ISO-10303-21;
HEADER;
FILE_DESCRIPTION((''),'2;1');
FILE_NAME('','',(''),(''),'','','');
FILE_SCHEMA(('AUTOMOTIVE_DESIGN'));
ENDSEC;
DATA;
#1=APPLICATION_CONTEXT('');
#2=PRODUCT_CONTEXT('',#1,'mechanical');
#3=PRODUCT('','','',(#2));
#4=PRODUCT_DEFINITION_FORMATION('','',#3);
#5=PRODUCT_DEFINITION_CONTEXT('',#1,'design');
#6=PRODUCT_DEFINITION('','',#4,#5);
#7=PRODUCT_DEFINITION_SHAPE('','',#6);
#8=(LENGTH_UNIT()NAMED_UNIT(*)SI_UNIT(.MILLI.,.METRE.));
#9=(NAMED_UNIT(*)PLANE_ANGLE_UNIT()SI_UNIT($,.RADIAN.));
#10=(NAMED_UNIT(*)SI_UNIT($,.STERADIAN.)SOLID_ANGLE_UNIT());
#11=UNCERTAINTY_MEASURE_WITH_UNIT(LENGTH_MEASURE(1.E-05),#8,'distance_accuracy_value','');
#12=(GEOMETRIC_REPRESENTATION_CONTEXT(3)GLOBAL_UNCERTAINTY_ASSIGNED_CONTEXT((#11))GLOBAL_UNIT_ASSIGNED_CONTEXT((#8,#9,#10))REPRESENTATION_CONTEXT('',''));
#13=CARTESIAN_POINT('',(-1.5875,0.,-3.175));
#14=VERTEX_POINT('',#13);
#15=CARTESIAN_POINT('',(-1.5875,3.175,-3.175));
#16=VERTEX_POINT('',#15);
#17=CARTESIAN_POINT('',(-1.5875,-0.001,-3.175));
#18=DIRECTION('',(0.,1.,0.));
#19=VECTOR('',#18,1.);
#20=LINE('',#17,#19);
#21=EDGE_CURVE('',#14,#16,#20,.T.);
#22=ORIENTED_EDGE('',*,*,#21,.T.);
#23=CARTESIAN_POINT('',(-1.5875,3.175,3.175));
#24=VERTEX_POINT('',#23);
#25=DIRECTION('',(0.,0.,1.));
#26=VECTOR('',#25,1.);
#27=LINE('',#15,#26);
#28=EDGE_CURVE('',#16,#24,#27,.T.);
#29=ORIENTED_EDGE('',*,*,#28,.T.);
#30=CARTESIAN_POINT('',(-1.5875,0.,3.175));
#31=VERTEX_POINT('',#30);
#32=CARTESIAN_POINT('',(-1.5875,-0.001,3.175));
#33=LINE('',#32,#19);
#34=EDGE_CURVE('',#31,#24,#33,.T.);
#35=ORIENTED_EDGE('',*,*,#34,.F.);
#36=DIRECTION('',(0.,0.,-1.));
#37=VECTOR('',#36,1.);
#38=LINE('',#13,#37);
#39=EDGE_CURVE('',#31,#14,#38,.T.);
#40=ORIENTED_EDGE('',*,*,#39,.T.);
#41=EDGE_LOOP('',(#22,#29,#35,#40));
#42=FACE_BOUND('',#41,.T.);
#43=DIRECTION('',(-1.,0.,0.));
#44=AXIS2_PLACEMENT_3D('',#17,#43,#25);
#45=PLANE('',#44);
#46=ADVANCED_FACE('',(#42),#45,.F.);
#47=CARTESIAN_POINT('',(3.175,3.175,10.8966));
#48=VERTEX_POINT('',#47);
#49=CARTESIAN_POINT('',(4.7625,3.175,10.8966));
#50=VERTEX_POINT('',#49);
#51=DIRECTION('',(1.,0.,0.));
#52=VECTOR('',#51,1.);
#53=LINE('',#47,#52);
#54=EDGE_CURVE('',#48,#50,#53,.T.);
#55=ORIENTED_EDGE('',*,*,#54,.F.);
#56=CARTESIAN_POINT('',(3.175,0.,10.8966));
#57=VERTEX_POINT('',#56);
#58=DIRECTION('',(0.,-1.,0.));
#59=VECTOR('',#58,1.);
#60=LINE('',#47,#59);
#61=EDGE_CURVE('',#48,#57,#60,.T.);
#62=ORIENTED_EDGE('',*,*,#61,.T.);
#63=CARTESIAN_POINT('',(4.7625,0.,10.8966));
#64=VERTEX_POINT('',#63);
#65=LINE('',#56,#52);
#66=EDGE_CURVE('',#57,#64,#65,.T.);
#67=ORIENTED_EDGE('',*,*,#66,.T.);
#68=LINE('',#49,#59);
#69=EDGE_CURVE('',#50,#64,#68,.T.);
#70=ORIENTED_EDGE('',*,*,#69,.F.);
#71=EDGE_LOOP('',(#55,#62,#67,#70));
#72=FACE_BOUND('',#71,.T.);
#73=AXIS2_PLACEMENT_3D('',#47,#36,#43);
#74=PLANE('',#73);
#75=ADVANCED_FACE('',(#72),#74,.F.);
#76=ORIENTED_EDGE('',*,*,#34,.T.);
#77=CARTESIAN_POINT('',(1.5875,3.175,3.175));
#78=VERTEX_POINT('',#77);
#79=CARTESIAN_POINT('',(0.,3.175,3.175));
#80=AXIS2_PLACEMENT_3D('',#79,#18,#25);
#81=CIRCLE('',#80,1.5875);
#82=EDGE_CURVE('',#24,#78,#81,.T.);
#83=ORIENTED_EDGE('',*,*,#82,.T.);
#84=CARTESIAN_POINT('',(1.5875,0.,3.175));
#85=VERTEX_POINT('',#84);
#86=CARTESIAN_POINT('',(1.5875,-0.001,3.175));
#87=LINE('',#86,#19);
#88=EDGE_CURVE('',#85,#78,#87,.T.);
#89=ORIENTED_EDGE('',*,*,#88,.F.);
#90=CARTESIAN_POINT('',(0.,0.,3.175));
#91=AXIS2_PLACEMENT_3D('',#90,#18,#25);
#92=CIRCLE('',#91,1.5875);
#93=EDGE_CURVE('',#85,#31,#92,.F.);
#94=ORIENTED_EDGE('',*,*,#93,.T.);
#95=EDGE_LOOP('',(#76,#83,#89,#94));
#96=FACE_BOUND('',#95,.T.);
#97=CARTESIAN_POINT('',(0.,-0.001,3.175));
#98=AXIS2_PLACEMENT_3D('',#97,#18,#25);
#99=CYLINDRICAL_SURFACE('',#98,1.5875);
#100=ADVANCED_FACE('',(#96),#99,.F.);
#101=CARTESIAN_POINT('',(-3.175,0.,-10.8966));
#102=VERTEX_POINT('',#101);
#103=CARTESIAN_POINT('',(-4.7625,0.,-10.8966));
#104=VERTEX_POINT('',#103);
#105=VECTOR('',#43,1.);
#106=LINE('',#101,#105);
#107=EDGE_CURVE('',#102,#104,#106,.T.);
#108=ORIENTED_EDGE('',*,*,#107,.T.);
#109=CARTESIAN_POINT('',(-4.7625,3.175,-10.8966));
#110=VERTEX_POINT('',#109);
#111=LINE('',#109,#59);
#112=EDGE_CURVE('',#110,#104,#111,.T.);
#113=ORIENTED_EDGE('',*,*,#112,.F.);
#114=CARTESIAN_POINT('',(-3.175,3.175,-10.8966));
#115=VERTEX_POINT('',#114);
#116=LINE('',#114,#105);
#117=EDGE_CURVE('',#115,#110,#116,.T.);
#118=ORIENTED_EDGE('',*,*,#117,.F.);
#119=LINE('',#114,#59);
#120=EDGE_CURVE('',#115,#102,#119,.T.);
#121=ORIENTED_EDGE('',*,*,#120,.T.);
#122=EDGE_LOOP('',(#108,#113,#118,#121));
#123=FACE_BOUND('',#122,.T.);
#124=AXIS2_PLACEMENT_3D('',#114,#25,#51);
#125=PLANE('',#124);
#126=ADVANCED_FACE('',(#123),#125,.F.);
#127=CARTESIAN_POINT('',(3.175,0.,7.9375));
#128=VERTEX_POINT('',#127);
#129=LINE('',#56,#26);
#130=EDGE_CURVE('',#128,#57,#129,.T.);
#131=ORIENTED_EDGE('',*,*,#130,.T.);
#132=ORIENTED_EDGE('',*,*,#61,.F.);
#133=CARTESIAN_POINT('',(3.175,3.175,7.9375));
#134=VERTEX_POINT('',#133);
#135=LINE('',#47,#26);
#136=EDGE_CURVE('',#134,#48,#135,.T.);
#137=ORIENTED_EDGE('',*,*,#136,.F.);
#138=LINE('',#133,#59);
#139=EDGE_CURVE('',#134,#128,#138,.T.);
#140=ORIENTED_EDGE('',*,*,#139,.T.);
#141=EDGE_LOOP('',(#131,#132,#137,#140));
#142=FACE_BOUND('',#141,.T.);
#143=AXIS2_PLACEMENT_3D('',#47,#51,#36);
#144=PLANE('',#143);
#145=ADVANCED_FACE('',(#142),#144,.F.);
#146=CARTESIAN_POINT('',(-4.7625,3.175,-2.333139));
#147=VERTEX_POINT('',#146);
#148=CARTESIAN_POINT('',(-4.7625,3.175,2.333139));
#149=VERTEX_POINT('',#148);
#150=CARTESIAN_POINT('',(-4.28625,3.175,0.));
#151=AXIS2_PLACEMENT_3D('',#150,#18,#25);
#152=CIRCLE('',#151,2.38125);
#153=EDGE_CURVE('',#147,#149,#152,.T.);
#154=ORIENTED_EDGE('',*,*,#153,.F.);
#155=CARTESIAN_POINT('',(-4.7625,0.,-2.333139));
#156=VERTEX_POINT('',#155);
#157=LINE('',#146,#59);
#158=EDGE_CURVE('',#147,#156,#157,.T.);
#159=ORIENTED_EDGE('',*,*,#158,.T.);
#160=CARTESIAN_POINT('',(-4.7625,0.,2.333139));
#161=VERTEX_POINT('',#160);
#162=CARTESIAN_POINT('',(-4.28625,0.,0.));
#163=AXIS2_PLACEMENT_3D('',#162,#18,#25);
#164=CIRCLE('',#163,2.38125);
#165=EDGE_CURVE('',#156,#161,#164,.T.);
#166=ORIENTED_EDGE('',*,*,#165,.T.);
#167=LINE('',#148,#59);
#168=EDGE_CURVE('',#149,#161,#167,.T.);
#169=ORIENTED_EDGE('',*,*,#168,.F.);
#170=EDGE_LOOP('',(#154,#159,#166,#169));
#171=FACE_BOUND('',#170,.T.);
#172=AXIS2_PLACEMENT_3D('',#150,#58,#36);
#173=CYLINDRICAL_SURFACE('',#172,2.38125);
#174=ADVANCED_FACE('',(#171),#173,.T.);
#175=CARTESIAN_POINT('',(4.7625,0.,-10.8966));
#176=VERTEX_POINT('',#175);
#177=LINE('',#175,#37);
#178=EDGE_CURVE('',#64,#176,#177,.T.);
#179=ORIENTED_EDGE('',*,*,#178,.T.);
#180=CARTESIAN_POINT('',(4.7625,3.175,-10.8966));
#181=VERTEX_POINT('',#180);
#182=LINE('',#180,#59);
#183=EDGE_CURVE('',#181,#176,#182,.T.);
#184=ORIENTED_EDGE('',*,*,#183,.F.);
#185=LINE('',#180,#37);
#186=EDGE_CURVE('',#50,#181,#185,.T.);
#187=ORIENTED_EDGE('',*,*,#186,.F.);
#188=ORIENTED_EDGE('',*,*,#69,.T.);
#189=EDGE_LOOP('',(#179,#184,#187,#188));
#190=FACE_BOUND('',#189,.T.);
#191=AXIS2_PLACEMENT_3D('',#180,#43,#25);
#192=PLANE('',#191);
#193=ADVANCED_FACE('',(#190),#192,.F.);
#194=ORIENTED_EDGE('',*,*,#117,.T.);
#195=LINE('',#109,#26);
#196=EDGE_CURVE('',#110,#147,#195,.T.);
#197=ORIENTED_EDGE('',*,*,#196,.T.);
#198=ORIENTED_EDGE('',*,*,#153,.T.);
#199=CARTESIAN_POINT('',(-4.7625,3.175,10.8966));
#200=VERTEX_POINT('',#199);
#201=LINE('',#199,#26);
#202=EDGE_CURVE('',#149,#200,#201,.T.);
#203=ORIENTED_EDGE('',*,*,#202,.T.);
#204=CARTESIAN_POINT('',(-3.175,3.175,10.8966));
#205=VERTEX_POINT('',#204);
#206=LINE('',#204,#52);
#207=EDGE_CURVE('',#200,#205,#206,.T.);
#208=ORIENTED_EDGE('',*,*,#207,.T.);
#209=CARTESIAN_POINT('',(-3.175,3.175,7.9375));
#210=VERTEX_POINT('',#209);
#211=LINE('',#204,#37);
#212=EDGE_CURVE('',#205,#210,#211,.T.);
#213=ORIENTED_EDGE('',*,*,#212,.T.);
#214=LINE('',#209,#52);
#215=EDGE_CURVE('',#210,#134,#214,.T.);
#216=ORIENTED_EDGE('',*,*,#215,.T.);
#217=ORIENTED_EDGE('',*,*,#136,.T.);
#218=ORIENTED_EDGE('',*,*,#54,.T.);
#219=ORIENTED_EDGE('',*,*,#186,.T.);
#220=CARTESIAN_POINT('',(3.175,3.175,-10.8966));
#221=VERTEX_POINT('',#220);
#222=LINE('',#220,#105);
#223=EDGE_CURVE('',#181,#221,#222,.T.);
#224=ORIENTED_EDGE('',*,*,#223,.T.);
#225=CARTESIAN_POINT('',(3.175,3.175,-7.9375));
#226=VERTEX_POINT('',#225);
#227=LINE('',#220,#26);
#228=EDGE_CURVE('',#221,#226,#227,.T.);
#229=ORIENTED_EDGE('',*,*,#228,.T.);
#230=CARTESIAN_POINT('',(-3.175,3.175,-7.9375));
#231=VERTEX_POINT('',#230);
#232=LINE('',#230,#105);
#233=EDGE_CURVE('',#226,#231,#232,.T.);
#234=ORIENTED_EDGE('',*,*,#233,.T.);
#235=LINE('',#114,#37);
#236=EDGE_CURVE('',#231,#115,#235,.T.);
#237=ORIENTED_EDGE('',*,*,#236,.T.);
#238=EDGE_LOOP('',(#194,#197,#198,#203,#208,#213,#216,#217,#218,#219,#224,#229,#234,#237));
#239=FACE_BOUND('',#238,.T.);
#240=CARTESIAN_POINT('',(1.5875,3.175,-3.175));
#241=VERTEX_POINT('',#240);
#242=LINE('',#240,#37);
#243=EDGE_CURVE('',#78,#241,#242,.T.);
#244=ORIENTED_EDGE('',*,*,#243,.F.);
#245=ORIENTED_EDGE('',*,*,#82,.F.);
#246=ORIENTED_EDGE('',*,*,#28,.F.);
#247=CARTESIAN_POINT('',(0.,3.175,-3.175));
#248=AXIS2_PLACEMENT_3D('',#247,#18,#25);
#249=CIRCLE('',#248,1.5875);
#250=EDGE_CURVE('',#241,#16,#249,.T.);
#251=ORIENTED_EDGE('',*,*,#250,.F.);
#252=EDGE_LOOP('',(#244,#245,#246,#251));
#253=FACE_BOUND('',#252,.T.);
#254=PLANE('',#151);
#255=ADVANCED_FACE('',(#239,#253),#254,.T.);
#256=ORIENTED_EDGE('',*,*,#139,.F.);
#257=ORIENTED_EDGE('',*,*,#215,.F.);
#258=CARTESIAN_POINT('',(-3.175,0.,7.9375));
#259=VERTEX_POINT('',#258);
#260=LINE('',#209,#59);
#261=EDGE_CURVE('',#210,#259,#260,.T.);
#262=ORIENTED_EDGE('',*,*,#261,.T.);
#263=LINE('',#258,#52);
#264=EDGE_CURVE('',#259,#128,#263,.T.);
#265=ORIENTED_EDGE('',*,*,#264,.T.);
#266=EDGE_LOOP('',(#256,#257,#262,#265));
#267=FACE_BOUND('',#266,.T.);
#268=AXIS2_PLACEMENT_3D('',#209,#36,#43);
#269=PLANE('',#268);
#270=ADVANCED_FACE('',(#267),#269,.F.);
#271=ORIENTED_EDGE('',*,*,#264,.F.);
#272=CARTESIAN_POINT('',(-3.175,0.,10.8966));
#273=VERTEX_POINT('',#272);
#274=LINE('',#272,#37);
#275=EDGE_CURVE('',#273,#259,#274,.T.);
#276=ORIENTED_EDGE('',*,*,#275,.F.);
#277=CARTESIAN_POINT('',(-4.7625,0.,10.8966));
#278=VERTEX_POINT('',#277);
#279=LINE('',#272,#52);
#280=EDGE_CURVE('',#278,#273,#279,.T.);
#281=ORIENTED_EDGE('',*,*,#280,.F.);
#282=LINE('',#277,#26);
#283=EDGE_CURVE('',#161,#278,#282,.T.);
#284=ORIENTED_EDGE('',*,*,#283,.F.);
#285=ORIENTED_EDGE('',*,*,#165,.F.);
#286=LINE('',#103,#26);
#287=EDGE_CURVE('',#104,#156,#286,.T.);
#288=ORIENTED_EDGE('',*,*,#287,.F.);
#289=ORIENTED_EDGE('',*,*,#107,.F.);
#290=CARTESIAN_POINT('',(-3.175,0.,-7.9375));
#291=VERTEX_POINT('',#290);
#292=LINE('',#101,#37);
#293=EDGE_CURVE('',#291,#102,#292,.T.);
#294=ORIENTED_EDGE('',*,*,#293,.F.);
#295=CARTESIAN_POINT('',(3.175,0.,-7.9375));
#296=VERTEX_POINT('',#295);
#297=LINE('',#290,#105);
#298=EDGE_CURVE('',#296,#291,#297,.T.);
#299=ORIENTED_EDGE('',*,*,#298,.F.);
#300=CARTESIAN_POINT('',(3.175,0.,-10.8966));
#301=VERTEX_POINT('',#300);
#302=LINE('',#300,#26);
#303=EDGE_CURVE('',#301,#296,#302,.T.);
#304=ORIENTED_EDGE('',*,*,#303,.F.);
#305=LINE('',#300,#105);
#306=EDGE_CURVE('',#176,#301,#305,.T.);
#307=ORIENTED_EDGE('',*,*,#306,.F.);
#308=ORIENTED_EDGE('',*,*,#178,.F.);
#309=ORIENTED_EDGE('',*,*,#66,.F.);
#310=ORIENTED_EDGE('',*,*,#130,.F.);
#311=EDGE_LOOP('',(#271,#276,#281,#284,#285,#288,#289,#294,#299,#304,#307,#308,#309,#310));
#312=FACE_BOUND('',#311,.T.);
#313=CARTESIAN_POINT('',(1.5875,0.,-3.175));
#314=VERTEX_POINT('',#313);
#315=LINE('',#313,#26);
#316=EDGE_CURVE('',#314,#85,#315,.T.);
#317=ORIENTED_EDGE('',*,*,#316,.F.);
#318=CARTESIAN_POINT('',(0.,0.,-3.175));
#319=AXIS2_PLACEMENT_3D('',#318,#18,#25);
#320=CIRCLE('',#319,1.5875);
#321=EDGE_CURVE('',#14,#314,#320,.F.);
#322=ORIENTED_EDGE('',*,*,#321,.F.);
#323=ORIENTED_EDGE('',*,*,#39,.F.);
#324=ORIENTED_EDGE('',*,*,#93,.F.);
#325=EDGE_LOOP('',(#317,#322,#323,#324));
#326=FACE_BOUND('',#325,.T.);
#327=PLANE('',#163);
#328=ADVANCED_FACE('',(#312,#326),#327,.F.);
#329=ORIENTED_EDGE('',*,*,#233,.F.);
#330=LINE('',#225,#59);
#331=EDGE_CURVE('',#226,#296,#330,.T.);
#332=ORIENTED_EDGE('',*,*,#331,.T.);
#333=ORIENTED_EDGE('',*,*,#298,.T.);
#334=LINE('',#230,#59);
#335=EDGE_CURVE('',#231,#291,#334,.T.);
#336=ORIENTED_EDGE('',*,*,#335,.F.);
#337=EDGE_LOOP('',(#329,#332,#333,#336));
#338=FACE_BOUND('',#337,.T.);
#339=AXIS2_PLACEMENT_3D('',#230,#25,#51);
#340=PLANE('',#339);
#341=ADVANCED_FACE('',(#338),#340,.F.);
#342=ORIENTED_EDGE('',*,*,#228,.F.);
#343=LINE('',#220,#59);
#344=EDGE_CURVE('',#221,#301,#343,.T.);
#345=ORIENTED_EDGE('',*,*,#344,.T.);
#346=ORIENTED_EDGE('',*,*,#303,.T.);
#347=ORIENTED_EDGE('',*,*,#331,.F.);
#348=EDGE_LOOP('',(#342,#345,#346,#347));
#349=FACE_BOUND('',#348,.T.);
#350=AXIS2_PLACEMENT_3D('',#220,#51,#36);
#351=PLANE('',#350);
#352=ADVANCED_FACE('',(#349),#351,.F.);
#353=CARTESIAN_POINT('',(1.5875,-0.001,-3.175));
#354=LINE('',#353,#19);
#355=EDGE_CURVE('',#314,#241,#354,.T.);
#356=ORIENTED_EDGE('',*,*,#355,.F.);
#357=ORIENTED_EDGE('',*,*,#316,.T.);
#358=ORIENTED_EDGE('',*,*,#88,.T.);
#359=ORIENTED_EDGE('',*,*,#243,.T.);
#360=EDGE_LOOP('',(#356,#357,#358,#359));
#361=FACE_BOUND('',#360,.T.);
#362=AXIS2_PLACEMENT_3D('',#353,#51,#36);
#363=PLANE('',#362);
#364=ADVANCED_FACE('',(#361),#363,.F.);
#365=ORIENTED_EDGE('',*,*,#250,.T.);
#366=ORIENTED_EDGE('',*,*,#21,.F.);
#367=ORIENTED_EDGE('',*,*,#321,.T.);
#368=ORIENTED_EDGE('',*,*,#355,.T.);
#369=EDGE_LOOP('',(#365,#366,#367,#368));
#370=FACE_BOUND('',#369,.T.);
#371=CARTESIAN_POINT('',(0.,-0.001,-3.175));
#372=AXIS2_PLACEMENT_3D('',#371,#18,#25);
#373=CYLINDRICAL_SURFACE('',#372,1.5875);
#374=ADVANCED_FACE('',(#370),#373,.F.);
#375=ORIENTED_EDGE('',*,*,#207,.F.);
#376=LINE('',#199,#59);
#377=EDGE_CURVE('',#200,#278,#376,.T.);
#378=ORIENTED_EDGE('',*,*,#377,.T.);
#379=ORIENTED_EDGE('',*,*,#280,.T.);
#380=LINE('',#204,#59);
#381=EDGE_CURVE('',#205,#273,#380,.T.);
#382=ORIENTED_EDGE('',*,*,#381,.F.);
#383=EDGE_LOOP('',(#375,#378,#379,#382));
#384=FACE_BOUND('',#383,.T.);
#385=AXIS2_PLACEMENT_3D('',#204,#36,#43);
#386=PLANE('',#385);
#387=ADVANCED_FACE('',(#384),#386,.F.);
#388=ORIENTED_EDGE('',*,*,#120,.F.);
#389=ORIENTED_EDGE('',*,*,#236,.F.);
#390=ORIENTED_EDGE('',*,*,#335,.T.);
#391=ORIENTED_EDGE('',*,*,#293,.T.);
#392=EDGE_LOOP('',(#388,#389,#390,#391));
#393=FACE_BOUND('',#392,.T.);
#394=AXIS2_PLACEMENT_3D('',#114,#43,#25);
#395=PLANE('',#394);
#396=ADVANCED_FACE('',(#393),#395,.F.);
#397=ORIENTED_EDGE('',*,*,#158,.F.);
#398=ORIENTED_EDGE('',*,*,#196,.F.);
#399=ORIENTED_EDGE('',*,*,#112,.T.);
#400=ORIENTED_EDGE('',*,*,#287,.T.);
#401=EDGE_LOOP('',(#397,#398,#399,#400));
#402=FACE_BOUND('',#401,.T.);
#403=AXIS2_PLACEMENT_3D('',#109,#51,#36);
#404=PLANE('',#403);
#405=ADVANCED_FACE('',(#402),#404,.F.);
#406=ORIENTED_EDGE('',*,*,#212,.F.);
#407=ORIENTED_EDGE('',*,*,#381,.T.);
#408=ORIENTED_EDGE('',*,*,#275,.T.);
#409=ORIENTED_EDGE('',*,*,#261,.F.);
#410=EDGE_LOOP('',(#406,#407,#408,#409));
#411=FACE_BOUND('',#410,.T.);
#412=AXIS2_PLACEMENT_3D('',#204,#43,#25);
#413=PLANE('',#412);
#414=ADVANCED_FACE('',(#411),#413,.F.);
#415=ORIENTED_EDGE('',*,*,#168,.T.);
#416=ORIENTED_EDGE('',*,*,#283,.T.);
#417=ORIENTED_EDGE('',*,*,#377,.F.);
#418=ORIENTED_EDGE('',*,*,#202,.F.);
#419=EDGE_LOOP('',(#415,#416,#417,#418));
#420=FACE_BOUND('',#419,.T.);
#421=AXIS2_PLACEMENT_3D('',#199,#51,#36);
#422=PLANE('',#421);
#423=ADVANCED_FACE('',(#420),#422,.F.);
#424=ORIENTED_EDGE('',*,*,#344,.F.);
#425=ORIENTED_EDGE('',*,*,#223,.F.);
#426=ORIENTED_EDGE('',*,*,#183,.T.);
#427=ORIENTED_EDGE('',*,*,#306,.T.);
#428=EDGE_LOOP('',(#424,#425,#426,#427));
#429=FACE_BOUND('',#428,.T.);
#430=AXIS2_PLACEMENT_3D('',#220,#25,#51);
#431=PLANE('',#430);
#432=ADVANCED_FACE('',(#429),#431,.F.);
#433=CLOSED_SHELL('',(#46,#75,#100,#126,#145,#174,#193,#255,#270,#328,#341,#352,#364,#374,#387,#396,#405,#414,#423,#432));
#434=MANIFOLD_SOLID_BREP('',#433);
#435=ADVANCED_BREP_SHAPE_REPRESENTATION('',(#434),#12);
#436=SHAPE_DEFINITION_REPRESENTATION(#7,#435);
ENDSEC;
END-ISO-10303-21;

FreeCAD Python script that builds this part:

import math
import FreeCAD as App
import Part
import Sketcher
Q = App.Units.Quantity

doc = App.newDocument("Part")
body = doc.addObject("PartDesign::Body", "Body")

sketch1 = body.newObject("Sketcher::SketchObject", "Sketch")
sketch1.AttachmentSupport = (doc.getObject("XZ_Plane"), [""])
sketch1.MapMode = "FlatFace"
sketch1.addGeometry(Part.LineSegment(App.Vector(-3.175, -7.9375, 0), App.Vector(-3.175, -10.8966, 0)), False)
sketch1.addGeometry(Part.LineSegment(App.Vector(-3.175, -10.8966, 0), App.Vector(-4.7625, -10.8966, 0)), False)
sketch1.addGeometry(Part.LineSegment(App.Vector(-4.7625, -10.8966, 0), App.Vector(-4.7625, -2.333139, 0)), False)
sketch1.addGeometry(Part.ArcOfCircle(Part.Circle(App.Vector(-4.28625, 0, 0), App.Vector(0, 0, 1), 2.38125), math.radians(101.536959), math.radians(258.463041)), False)
sketch1.addGeometry(Part.LineSegment(App.Vector(-4.7625, 2.333139, 0), App.Vector(-4.7625, 10.8966, 0)), False)
sketch1.addGeometry(Part.LineSegment(App.Vector(-4.7625, 10.8966, 0), App.Vector(-3.175, 10.8966, 0)), False)
sketch1.addGeometry(Part.LineSegment(App.Vector(-3.175, 10.8966, 0), App.Vector(-3.175, 7.9375, 0)), False)
sketch1.addGeometry(Part.LineSegment(App.Vector(-3.175, 7.9375, 0), App.Vector(3.175, 7.9375, 0)), False)
sketch1.addGeometry(Part.LineSegment(App.Vector(3.175, 7.9375, 0), App.Vector(3.175, 10.8966, 0)), False)
sketch1.addGeometry(Part.LineSegment(App.Vector(3.175, 10.8966, 0), App.Vector(4.7625, 10.8966, 0)), False)
sketch1.addGeometry(Part.LineSegment(App.Vector(4.7625, 10.8966, 0), App.Vector(4.7625, -10.8966, 0)), False)
sketch1.addGeometry(Part.LineSegment(App.Vector(4.7625, -10.8966, 0), App.Vector(3.175, -10.8966, 0)), False)
sketch1.addGeometry(Part.LineSegment(App.Vector(3.175, -10.8966, 0), App.Vector(3.175, -7.9375, 0)), False)
sketch1.addGeometry(Part.LineSegment(App.Vector(3.175, -7.9375, 0), App.Vector(-3.175, -7.9375, 0)), False)
sketch1.addConstraint(Sketcher.Constraint("Coincident", 0, 2, 1, 1))
sketch1.addConstraint(Sketcher.Constraint("Coincident", 1, 2, 2, 1))
sketch1.addConstraint(Sketcher.Constraint("Coincident", 2, 2, 3, 2))
sketch1.addConstraint(Sketcher.Constraint("Coincident", 3, 1, 4, 1))
sketch1.addConstraint(Sketcher.Constraint("Coincident", 4, 2, 5, 1))
sketch1.addConstraint(Sketcher.Constraint("Coincident", 5, 2, 6, 1))
sketch1.addConstraint(Sketcher.Constraint("Coincident", 6, 2, 7, 1))
sketch1.addConstraint(Sketcher.Constraint("Coincident", 7, 2, 8, 1))
sketch1.addConstraint(Sketcher.Constraint("Coincident", 8, 2, 9, 1))
sketch1.addConstraint(Sketcher.Constraint("Coincident", 9, 2, 10, 1))
sketch1.addConstraint(Sketcher.Constraint("Coincident", 10, 2, 11, 1))
sketch1.addConstraint(Sketcher.Constraint("Coincident", 11, 2, 12, 1))
sketch1.addConstraint(Sketcher.Constraint("Coincident", 12, 2, 13, 1))
sketch1.addConstraint(Sketcher.Constraint("Coincident", 13, 2, 0, 1))
sketch1.addConstraint(Sketcher.Constraint("Vertical", 0))
sketch1.addConstraint(Sketcher.Constraint("Horizontal", 1))
sketch1.addConstraint(Sketcher.Constraint("Vertical", 2))
sketch1.addConstraint(Sketcher.Constraint("Vertical", 4))
sketch1.addConstraint(Sketcher.Constraint("Horizontal", 5))
sketch1.addConstraint(Sketcher.Constraint("Vertical", 6))
sketch1.addConstraint(Sketcher.Constraint("Horizontal", 7))
sketch1.addConstraint(Sketcher.Constraint("Vertical", 8))
sketch1.addConstraint(Sketcher.Constraint("Horizontal", 9))
sketch1.addConstraint(Sketcher.Constraint("Vertical", 10))
sketch1.addConstraint(Sketcher.Constraint("Horizontal", 11))
sketch1.addConstraint(Sketcher.Constraint("Vertical", 12))
sketch1.addConstraint(Sketcher.Constraint("Horizontal", 13))
sketch1.addConstraint(Sketcher.Constraint("Symmetric", 0, 2, 8, 2, -1, 1))
sketch1.addConstraint(Sketcher.Constraint("Symmetric", 4, 2, 10, 2, -1, 1))
sketch1.addConstraint(Sketcher.Constraint("Symmetric", 6, 2, 12, 2, -1, 1))
sketch1.addConstraint(Sketcher.Constraint("Symmetric", 5, 2, 8, 2, -2))
sketch1.addConstraint(Sketcher.Constraint("Symmetric", 2, 2, 3, 1, -1))
sketch1.addConstraint(Sketcher.Constraint("Radius", 3, Q("0.09375 in")))
sketch1.addConstraint(Sketcher.Constraint("DistanceX", 7, 1, 7, 2, Q("0.25 in")))
sketch1.addConstraint(Sketcher.Constraint("DistanceX", 1, 2, 1, 1, Q("0.0625 in")))
sketch1.addConstraint(Sketcher.Constraint("DistanceY", 10, 2, 10, 1, Q("0.858 in")))
sketch1.addConstraint(Sketcher.Constraint("DistanceY", 0, 2, 0, 1, Q("0.1165 in")))
sketch1.addConstraint(Sketcher.Constraint("DistanceY", 2, 1, 2, 2, Q("8.563461 mm")))
pad1 = body.newObject("PartDesign::Pad", "Pad")
pad1.Profile = sketch1
pad1.Length = Q("0.125 in")
pad1.Reversed = True

sketch2 = body.newObject("Sketcher::SketchObject", "Sketch001")
sketch2.AttachmentSupport = (doc.getObject("XZ_Plane"), [""])
sketch2.MapMode = "FlatFace"
sketch2.AttachmentOffset = App.Placement(App.Vector(0, 0, -0.125 * 25.4), App.Rotation())
sketch2.addGeometry(Part.LineSegment(App.Vector(1.5875, 3.175, 0), App.Vector(1.5875, -3.175, 0)), False)
sketch2.addGeometry(Part.ArcOfCircle(Part.Circle(App.Vector(0, -3.175, 0), App.Vector(0, 0, 1), 1.5875), math.radians(180), math.radians(360)), False)
sketch2.addGeometry(Part.LineSegment(App.Vector(-1.5875, -3.175, 0), App.Vector(-1.5875, 3.175, 0)), False)
sketch2.addGeometry(Part.ArcOfCircle(Part.Circle(App.Vector(0, 3.175, 0), App.Vector(0, 0, 1), 1.5875), math.radians(0), math.radians(180)), False)
sketch2.addConstraint(Sketcher.Constraint("Tangent", 0, 2, 1, 2))
sketch2.addConstraint(Sketcher.Constraint("Tangent", 1, 1, 2, 1))
sketch2.addConstraint(Sketcher.Constraint("Tangent", 2, 2, 3, 2))
sketch2.addConstraint(Sketcher.Constraint("Tangent", 3, 1, 0, 1))
sketch2.addConstraint(Sketcher.Constraint("Vertical", 0))
sketch2.addConstraint(Sketcher.Constraint("Vertical", 2))
sketch2.addConstraint(Sketcher.Constraint("Symmetric", 1, 3, 3, 3, -1, 1))
sketch2.addConstraint(Sketcher.Constraint("Radius", 1, Q("0.0625 in")))
sketch2.addConstraint(Sketcher.Constraint("DistanceY", 0, 2, 0, 1, Q("0.25 in")))
pocket1 = body.newObject("PartDesign::Pocket", "Pocket")
pocket1.Profile = sketch2
pocket1.Type = "UpToFirst"
pocket1.Reversed = True

doc.recompute()
